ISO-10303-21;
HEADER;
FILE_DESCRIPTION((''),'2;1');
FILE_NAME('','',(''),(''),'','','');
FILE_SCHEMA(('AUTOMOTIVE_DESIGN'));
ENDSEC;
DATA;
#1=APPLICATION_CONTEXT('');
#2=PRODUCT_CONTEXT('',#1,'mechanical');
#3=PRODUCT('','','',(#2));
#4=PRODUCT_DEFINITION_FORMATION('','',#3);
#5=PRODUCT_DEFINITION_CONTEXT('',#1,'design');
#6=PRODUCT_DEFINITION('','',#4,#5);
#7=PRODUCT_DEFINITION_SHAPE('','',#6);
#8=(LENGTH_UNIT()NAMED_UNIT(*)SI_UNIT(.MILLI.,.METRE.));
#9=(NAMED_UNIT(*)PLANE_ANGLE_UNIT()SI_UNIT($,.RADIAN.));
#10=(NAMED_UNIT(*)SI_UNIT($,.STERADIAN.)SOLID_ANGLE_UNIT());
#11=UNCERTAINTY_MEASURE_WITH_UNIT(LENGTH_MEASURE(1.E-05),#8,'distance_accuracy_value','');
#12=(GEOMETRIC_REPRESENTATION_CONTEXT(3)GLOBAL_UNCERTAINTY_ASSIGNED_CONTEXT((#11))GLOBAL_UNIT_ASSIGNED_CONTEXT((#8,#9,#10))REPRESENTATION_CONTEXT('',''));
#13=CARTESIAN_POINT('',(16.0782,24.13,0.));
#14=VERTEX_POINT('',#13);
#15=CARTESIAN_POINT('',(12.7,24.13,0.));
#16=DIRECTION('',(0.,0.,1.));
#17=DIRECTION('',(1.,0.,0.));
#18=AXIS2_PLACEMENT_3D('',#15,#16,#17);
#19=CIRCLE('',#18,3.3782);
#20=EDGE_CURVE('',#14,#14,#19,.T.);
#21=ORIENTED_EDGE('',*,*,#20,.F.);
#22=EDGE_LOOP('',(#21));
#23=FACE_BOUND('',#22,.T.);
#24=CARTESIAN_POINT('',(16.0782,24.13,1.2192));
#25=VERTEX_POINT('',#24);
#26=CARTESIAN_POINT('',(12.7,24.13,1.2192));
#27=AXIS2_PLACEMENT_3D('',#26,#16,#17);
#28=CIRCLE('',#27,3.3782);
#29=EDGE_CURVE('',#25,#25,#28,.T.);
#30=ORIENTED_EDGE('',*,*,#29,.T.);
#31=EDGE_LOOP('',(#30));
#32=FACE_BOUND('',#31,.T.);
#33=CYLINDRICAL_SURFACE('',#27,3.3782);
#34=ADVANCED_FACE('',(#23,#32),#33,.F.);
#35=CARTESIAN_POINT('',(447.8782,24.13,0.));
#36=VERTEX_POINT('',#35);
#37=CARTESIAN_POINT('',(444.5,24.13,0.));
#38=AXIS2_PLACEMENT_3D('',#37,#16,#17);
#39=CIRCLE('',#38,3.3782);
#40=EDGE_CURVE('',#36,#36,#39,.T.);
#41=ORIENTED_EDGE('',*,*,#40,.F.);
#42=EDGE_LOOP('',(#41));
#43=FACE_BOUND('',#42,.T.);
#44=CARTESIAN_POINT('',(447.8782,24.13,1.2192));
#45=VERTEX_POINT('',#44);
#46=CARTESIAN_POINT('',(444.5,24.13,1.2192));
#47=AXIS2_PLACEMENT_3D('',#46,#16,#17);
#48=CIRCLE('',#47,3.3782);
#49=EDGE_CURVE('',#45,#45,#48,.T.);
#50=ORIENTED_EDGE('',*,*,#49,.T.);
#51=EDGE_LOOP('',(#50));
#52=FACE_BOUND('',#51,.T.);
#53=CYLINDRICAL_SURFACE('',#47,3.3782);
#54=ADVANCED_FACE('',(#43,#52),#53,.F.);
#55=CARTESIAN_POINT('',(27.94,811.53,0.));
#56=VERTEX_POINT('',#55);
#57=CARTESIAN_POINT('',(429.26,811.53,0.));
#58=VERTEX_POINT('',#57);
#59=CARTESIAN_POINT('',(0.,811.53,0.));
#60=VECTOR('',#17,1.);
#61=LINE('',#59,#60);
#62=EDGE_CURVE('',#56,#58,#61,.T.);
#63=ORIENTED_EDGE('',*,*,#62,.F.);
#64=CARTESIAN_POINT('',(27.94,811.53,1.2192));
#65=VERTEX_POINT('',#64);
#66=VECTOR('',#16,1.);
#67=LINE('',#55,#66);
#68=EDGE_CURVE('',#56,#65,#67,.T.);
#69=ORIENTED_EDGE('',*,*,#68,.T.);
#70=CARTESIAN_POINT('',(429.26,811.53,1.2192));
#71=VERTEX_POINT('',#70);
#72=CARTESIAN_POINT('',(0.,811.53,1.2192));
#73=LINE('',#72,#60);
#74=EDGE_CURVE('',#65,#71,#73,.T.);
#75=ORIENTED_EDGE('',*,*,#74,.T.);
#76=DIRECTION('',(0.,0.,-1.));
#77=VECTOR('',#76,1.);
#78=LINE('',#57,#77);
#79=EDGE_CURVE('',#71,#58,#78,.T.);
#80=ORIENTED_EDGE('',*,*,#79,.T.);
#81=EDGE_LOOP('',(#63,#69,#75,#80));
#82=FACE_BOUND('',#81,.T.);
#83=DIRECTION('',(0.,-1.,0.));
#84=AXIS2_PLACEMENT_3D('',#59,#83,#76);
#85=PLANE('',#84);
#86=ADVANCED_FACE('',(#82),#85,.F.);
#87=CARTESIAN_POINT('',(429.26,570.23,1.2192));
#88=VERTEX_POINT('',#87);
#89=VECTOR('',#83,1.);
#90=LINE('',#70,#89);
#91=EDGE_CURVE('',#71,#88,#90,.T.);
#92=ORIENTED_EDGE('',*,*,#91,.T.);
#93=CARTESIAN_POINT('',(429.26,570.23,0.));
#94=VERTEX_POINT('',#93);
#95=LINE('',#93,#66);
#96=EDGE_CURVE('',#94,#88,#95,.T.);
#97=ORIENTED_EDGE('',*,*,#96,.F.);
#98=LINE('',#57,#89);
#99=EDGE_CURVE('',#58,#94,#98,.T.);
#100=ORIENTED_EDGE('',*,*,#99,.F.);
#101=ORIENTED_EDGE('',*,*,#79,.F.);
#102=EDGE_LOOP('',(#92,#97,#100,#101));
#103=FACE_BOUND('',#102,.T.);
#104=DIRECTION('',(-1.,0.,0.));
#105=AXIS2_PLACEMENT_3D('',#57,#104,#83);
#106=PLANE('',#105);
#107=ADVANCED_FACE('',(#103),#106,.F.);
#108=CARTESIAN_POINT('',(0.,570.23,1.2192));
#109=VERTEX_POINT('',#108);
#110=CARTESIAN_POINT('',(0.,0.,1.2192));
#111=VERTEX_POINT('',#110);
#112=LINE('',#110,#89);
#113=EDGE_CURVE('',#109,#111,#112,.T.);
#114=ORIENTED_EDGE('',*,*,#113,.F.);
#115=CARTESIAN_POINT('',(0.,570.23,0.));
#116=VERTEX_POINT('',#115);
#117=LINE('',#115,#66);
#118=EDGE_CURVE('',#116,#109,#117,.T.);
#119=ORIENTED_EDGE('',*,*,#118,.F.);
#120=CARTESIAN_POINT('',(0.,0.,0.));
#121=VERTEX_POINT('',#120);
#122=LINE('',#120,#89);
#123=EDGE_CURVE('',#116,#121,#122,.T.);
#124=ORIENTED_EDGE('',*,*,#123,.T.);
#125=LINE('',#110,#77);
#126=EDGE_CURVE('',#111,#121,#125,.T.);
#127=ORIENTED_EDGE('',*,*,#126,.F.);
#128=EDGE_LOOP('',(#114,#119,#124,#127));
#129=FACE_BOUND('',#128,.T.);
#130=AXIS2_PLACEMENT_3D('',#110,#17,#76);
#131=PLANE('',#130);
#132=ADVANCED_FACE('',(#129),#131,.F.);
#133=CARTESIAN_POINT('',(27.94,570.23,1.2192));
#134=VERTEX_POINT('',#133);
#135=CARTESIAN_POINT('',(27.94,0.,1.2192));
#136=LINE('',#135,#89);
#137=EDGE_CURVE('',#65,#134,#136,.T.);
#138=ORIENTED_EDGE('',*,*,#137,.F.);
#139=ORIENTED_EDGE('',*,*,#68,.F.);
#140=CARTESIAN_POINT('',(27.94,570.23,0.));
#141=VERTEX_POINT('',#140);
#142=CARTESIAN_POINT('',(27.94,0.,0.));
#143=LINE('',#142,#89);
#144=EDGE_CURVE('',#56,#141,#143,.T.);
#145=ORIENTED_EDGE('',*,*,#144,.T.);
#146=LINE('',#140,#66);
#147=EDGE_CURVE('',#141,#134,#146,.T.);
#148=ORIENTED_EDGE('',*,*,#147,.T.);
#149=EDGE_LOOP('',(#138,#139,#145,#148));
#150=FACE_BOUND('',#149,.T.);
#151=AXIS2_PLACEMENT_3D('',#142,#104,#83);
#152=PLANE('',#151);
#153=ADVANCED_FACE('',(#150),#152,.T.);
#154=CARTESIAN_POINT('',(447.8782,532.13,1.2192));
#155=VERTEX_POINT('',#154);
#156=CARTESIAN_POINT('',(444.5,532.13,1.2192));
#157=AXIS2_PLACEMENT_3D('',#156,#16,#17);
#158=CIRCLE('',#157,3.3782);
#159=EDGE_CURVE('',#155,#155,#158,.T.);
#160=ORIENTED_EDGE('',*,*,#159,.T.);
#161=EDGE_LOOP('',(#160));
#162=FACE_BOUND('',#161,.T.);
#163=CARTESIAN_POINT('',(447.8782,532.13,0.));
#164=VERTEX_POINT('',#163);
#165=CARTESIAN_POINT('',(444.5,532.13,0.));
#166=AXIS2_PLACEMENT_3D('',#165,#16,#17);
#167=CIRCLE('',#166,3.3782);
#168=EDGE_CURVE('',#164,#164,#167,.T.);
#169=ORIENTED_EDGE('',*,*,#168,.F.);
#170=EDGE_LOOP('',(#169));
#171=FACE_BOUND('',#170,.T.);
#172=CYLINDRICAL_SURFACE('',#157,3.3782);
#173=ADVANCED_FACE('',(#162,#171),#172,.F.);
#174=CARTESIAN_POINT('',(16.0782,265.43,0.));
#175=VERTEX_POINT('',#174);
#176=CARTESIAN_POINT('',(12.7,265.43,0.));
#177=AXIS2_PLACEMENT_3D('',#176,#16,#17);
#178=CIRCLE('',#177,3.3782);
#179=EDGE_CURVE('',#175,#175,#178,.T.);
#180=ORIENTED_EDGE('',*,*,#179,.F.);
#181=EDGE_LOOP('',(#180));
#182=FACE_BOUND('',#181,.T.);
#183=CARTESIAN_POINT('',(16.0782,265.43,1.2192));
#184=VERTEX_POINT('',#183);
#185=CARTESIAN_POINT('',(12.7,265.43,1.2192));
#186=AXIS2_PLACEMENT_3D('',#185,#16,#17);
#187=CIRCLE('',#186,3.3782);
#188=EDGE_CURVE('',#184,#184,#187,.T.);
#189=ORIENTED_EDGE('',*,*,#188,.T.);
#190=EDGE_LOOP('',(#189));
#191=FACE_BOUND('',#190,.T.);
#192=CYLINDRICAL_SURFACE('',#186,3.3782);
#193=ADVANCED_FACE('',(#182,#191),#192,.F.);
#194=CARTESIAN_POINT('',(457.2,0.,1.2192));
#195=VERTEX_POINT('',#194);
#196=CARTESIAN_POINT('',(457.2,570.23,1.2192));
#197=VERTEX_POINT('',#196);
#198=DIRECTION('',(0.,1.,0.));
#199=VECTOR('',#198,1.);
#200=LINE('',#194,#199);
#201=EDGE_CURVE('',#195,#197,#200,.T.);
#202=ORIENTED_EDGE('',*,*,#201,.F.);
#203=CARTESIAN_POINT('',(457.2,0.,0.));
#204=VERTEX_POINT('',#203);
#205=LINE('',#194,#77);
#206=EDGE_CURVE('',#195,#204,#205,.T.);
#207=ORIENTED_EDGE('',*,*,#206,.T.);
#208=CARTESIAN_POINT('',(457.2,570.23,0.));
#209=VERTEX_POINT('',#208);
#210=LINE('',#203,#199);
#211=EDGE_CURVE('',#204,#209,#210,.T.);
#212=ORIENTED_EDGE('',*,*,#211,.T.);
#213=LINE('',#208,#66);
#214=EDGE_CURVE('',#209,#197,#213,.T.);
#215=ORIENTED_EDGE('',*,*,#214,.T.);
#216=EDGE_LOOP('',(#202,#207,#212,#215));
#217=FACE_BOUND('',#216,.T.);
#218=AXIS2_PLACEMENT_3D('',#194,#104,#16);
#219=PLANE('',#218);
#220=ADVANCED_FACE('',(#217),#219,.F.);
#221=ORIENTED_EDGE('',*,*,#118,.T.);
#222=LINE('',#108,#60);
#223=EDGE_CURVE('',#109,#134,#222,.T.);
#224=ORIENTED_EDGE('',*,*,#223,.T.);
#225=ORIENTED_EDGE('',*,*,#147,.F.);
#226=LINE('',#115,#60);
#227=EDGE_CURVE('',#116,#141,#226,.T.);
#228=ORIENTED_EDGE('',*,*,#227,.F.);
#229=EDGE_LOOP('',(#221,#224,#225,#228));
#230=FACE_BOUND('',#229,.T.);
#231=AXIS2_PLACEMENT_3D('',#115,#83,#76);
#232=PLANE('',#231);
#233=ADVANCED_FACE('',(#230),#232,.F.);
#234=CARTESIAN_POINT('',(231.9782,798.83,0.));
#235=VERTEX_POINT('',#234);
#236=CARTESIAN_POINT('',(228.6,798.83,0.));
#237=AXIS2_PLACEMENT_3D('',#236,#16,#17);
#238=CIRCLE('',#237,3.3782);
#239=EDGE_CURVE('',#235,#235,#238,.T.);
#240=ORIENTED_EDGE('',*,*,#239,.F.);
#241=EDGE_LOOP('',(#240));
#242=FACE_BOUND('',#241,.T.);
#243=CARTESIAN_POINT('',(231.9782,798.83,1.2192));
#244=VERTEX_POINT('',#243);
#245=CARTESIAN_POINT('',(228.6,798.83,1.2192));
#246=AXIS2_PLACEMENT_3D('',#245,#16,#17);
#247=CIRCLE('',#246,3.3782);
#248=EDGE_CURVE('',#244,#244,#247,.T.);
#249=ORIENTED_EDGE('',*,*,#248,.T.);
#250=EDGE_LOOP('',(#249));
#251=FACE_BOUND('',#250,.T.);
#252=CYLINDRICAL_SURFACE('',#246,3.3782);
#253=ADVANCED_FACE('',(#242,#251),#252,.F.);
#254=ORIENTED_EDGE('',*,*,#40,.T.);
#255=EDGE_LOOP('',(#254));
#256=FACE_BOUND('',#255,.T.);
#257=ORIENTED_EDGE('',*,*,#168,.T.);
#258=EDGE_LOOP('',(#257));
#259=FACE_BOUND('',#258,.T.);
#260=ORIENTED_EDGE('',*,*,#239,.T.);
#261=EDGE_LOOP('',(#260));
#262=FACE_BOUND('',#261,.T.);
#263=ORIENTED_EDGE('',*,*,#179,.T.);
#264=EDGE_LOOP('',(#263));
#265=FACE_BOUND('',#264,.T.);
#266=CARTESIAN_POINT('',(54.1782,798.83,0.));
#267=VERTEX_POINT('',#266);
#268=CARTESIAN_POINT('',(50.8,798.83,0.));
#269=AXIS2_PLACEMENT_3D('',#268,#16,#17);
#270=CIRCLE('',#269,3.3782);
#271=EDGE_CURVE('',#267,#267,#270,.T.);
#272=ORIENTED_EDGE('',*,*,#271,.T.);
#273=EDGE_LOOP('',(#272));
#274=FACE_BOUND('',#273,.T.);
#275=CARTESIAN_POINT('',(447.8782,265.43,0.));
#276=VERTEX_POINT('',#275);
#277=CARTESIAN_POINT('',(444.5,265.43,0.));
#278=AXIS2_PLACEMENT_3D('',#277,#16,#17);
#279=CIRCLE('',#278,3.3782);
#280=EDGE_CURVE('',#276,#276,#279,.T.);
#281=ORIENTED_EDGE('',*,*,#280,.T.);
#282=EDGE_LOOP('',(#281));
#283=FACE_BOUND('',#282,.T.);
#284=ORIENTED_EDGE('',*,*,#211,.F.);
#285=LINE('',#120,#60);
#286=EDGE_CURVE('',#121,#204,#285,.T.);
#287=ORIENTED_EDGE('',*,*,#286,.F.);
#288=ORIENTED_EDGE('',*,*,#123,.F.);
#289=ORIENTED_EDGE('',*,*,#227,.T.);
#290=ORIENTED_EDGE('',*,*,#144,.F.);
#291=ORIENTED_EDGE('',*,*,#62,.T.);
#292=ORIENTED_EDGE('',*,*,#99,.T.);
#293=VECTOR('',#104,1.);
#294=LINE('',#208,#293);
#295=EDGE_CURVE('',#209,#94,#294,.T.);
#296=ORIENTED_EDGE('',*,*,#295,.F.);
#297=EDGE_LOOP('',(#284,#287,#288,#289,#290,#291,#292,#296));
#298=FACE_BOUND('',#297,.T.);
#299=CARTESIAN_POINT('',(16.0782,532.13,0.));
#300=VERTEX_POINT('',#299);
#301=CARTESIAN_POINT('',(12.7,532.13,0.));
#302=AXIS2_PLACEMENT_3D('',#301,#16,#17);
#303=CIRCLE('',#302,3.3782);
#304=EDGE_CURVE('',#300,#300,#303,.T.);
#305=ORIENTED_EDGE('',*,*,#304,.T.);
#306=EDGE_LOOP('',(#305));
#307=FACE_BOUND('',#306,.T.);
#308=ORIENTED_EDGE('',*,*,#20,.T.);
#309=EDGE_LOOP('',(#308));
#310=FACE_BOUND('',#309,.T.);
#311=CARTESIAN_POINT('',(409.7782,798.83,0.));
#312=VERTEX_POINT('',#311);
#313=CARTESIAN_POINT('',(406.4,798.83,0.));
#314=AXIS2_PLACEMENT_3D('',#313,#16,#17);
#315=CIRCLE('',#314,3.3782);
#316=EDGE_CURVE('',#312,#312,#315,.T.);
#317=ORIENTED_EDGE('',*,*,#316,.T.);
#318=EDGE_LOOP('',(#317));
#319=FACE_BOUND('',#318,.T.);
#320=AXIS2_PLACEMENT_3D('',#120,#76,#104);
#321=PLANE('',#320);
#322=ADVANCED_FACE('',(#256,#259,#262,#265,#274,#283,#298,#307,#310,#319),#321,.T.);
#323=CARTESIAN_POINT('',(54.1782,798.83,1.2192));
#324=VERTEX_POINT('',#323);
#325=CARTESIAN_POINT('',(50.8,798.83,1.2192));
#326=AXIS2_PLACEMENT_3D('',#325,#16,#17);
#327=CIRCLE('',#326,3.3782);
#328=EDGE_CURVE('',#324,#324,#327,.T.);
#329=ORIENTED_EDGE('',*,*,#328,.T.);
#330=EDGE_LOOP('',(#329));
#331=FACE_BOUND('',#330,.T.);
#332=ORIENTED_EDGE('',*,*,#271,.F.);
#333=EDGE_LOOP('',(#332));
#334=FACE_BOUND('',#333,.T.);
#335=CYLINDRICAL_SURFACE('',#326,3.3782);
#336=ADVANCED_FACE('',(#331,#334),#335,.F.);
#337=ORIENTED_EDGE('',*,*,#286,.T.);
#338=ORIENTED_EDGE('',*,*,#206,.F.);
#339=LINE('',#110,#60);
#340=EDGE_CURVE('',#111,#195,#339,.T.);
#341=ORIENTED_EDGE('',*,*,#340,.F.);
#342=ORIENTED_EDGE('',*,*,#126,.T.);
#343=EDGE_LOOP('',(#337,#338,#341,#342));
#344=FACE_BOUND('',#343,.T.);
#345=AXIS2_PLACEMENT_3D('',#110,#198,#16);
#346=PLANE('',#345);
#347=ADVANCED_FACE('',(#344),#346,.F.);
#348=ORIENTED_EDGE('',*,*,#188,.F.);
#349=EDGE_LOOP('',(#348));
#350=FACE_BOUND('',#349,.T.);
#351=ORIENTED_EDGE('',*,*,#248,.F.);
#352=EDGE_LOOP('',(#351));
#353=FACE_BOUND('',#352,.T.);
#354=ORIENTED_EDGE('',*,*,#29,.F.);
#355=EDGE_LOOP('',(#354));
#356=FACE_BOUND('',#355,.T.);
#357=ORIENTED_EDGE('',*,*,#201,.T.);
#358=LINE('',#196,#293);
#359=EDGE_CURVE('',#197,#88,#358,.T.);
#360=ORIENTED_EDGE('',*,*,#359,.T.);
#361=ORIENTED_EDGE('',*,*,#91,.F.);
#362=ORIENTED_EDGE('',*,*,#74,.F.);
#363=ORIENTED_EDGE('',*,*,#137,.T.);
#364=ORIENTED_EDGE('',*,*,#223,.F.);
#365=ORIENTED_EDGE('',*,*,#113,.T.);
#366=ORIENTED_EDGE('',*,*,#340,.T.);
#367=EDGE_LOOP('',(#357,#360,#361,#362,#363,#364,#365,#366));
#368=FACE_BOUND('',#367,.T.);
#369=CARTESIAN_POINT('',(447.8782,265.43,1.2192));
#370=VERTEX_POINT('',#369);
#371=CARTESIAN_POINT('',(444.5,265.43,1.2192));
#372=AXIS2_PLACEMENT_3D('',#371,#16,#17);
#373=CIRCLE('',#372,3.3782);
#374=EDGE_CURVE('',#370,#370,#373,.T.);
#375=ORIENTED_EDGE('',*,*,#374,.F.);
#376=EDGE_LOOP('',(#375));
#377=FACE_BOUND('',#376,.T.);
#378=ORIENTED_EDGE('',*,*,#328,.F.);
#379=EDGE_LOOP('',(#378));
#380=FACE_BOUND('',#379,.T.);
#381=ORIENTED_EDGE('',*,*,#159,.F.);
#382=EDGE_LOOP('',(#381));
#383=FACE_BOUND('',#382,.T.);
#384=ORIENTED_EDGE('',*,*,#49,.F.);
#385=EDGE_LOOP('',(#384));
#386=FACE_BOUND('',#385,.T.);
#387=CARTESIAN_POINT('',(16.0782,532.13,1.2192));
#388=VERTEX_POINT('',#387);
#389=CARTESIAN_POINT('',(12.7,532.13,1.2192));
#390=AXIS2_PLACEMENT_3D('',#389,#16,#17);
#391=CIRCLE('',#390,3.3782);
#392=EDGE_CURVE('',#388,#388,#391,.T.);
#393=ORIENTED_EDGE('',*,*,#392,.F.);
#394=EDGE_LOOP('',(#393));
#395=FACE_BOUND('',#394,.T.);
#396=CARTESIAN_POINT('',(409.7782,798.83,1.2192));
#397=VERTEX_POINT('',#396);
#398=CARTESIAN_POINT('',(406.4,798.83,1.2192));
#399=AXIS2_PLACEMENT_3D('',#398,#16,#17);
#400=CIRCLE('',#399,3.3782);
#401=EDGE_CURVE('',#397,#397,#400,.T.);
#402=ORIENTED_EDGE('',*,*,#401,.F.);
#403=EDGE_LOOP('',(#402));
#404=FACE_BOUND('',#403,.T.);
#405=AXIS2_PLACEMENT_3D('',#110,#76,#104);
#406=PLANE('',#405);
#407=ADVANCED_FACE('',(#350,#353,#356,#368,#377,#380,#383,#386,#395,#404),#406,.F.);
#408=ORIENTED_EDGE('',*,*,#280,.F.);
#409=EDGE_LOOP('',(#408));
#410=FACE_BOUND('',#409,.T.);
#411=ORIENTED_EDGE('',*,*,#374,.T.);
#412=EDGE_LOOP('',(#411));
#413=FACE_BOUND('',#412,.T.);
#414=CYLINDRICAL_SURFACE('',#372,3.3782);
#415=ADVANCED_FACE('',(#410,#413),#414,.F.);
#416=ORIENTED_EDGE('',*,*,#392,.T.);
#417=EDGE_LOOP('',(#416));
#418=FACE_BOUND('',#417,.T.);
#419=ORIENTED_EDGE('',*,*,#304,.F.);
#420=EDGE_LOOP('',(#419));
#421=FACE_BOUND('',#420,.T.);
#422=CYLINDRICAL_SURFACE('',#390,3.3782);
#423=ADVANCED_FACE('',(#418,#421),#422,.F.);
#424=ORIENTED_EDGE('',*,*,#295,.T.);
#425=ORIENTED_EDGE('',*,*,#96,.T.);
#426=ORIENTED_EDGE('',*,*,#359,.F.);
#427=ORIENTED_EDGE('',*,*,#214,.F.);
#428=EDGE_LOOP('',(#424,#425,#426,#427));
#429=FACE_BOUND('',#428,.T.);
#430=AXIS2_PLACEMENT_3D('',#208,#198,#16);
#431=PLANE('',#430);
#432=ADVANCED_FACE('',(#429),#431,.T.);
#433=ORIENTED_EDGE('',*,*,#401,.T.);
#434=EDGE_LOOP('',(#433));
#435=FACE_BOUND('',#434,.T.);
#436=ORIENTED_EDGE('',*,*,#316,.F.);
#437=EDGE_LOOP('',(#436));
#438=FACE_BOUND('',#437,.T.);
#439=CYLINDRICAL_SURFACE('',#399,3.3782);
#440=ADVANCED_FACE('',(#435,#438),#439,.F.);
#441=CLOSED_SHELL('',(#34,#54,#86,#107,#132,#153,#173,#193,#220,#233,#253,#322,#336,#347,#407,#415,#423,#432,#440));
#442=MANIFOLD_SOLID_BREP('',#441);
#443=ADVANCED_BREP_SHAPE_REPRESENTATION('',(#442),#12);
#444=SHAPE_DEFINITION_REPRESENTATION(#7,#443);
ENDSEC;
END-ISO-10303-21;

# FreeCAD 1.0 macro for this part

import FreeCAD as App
import Part
import Sketcher

V = App.Vector
Q = App.Units.Quantity


def add_polygon(sketch, points):
    """Adds a closed chain of lines whose ends are joined by coincident constraints."""
    first, n = sketch.GeometryCount, len(points)
    for a, b in zip(points, points[1:] + points[:1]):
        sketch.addGeometry(Part.LineSegment(App.Vector(*a, 0), App.Vector(*b, 0)), False)
    for i in range(n):
        sketch.addConstraint(Sketcher.Constraint("Coincident", first + i, 2, first + (i + 1) % n, 1))

doc = App.newDocument("Part")
params = doc.addObject("Spreadsheet::Sheet", "Params")
for row, (alias, value) in enumerate([
    ("sketch1_width", "18 in"),
    ("sketch1_height", "33.1 in"),
    ("pad1_length", "0.048 in"),
    ("sketch2_width", "18 in"),
    ("sketch2_width2", "1.1 in"),
    ("sketch2_height", "9.5 in"),
    ("sketch2_height2", "10.65 in"),
    ("pocket1_length", "0.048 in"),
    ("sketch3_diameter", "0.266 in"),
    ("hole_diameter", "0.266 in"),
], start=1):
    params.set(f"A{row}", alias)
    params.set(f"B{row}", "=" + value)
    params.setAlias(f"B{row}", alias)

body = doc.addObject("PartDesign::Body", "Body")

# Sketch on XY plane
sketch1 = body.newObject("Sketcher::SketchObject", "Sketch")
sketch1.AttachmentSupport = (doc.getObject("XY_Plane"), [""])
sketch1.MapMode = "FlatFace"
add_polygon(sketch1, [(0, 840.74), (0, 0), (457.2, 0), (457.2, 840.74)])  # lines 0-3
sketch1.addConstraint([
    Sketcher.Constraint("Vertical", 0),
    Sketcher.Constraint("Horizontal", 1),
    Sketcher.Constraint("Vertical", 2),
    Sketcher.Constraint("Horizontal", 3),
    Sketcher.Constraint("Coincident", 0, 2, -1, 1),
    Sketcher.Constraint("DistanceX", 1, 1, 1, 2, Q("18 in")),
    Sketcher.Constraint("DistanceY", 0, 2, 0, 1, Q("33.1 in")),
])
sketch1.setExpression("Constraints[9]", "Params.sketch1_width")
sketch1.setExpression("Constraints[10]", "Params.sketch1_height")
pad1 = body.newObject("PartDesign::Pad", "Pad")
pad1.Profile = sketch1
pad1.setExpression("Length", "Params.pad1_length")

# Sketch on XY plane
sketch2 = body.newObject("Sketcher::SketchObject", "Sketch001")
sketch2.AttachmentSupport = (doc.getObject("XY_Plane"), [""])
sketch2.MapMode = "FlatFace"
sketch2.AttachmentOffset = App.Placement(V(0, 0, 0.048 * 25.4), App.Rotation())
add_polygon(sketch2, [(0, 570.23), (27.94, 570.23), (27.94, 811.53), (429.26, 811.53), (429.26, 570.23), (457.2, 570.23), (457.2, 840.74), (0, 840.74)])  # lines 0-7
sketch2.addConstraint([
    Sketcher.Constraint("Horizontal", 0),
    Sketcher.Constraint("Vertical", 1),
    Sketcher.Constraint("Horizontal", 2),
    Sketcher.Constraint("Vertical", 3),
    Sketcher.Constraint("Horizontal", 4),
    Sketcher.Constraint("Vertical", 5),
    Sketcher.Constraint("Horizontal", 6),
    Sketcher.Constraint("Vertical", 7),
    Sketcher.Constraint("PointOnObject", 6, 2, -2),
    Sketcher.Constraint("Horizontal", 0, 2, 3, 2),
    Sketcher.Constraint("Equal", 0, 4),
    Sketcher.Constraint("DistanceX", 6, 2, 6, 1, Q("18 in")),
    Sketcher.Constraint("DistanceX", 0, 1, 0, 2, Q("1.1 in")),
    Sketcher.Constraint("DistanceY", 1, 1, 1, 2, Q("9.5 in")),
    Sketcher.Constraint("DistanceY", 5, 1, 5, 2, Q("10.65 in")),
    Sketcher.Constraint("DistanceY", -1, 1, 5, 2, Q("33.1 in")),
])
sketch2.setExpression("Constraints[19]", "Params.sketch2_width")
sketch2.setExpression("Constraints[20]", "Params.sketch2_width2")
sketch2.setExpression("Constraints[21]", "Params.sketch2_height")
sketch2.setExpression("Constraints[22]", "Params.sketch2_height2")
pocket1 = body.newObject("PartDesign::Pocket", "Pocket")
pocket1.Profile = sketch2
pocket1.setExpression("Length", "Params.pocket1_length")

# Sketch on XY plane
sketch3 = body.newObject("Sketcher::SketchObject", "Sketch002")
sketch3.AttachmentSupport = (doc.getObject("XY_Plane"), [""])
sketch3.MapMode = "FlatFace"
sketch3.AttachmentOffset = App.Placement(V(0, 0, 0.048 * 25.4), App.Rotation())
sketch3.addGeometry([
    Part.Circle(V(50.8, 798.83, 0), V(0, 0, 1), 3.3782),  # 0
    Part.Circle(V(228.6, 798.83, 0), V(0, 0, 1), 3.3782),  # 1
    Part.Circle(V(406.4, 798.83, 0), V(0, 0, 1), 3.3782),  # 2
    Part.Circle(V(12.7, 532.13, 0), V(0, 0, 1), 3.3782),  # 3
    Part.Circle(V(12.7, 265.43, 0), V(0, 0, 1), 3.3782),  # 4
    Part.Circle(V(12.7, 24.13, 0), V(0, 0, 1), 3.3782),  # 5
    Part.Circle(V(444.5, 24.13, 0), V(0, 0, 1), 3.3782),  # 6
    Part.Circle(V(444.5, 265.43, 0), V(0, 0, 1), 3.3782),  # 7
    Part.Circle(V(444.5, 532.13, 0), V(0, 0, 1), 3.3782),  # 8
], False)
sketch3.addConstraint([
    Sketcher.Constraint("Equal", 0, 1),
    Sketcher.Constraint("Equal", 1, 2),
    Sketcher.Constraint("Equal", 2, 3),
    Sketcher.Constraint("Equal", 3, 4),
    Sketcher.Constraint("Equal", 4, 5),
    Sketcher.Constraint("Equal", 5, 6),
    Sketcher.Constraint("Equal", 6, 7),
    Sketcher.Constraint("Equal", 7, 8),
    Sketcher.Constraint("Horizontal", 0, 3, 1, 3),
    Sketcher.Constraint("Horizontal", 1, 3, 2, 3),
    Sketcher.Constraint("Horizontal", 5, 3, 6, 3),
    Sketcher.Constraint("Horizontal", 4, 3, 7, 3),
    Sketcher.Constraint("Horizontal", 3, 3, 8, 3),
    Sketcher.Constraint("Vertical", 3, 3, 4, 3),
    Sketcher.Constraint("Vertical", 4, 3, 5, 3),
    Sketcher.Constraint("Vertical", 6, 3, 7, 3),
    Sketcher.Constraint("Vertical", 7, 3, 8, 3),
    Sketcher.Constraint("Diameter", 0, Q("0.266 in")),
    Sketcher.Constraint("DistanceX", -1, 1, 0, 3, Q("2 in")),
    Sketcher.Constraint("DistanceX", -1, 1, 1, 3, Q("9 in")),
    Sketcher.Constraint("DistanceX", -1, 1, 2, 3, Q("16 in")),
    Sketcher.Constraint("DistanceY", 4, 3, 0, 3, Q("21 in")),
    Sketcher.Constraint("DistanceY", 5, 3, 3, 3, Q("20 in")),
    Sketcher.Constraint("DistanceX", 5, 3, 6, 3, Q("17 in")),
    Sketcher.Constraint("DistanceX", -1, 1, 3, 3, Q("0.5 in")),
    Sketcher.Constraint("DistanceY", 3, 3, 0, 3, Q("10.5 in")),
    Sketcher.Constraint("DistanceY", -1, 1, 0, 3, Q("31.45 in")),
])
sketch3.setExpression("Constraints[17]", "Params.sketch3_diameter")
doc.recompute()
hole = body.newObject("PartDesign::Hole", "Hole")
hole.Profile = sketch3
hole.ThreadType = "None"
hole.setExpression("Diameter", "Params.hole_diameter")
hole.DepthType = "ThroughAll"

doc.recompute()
